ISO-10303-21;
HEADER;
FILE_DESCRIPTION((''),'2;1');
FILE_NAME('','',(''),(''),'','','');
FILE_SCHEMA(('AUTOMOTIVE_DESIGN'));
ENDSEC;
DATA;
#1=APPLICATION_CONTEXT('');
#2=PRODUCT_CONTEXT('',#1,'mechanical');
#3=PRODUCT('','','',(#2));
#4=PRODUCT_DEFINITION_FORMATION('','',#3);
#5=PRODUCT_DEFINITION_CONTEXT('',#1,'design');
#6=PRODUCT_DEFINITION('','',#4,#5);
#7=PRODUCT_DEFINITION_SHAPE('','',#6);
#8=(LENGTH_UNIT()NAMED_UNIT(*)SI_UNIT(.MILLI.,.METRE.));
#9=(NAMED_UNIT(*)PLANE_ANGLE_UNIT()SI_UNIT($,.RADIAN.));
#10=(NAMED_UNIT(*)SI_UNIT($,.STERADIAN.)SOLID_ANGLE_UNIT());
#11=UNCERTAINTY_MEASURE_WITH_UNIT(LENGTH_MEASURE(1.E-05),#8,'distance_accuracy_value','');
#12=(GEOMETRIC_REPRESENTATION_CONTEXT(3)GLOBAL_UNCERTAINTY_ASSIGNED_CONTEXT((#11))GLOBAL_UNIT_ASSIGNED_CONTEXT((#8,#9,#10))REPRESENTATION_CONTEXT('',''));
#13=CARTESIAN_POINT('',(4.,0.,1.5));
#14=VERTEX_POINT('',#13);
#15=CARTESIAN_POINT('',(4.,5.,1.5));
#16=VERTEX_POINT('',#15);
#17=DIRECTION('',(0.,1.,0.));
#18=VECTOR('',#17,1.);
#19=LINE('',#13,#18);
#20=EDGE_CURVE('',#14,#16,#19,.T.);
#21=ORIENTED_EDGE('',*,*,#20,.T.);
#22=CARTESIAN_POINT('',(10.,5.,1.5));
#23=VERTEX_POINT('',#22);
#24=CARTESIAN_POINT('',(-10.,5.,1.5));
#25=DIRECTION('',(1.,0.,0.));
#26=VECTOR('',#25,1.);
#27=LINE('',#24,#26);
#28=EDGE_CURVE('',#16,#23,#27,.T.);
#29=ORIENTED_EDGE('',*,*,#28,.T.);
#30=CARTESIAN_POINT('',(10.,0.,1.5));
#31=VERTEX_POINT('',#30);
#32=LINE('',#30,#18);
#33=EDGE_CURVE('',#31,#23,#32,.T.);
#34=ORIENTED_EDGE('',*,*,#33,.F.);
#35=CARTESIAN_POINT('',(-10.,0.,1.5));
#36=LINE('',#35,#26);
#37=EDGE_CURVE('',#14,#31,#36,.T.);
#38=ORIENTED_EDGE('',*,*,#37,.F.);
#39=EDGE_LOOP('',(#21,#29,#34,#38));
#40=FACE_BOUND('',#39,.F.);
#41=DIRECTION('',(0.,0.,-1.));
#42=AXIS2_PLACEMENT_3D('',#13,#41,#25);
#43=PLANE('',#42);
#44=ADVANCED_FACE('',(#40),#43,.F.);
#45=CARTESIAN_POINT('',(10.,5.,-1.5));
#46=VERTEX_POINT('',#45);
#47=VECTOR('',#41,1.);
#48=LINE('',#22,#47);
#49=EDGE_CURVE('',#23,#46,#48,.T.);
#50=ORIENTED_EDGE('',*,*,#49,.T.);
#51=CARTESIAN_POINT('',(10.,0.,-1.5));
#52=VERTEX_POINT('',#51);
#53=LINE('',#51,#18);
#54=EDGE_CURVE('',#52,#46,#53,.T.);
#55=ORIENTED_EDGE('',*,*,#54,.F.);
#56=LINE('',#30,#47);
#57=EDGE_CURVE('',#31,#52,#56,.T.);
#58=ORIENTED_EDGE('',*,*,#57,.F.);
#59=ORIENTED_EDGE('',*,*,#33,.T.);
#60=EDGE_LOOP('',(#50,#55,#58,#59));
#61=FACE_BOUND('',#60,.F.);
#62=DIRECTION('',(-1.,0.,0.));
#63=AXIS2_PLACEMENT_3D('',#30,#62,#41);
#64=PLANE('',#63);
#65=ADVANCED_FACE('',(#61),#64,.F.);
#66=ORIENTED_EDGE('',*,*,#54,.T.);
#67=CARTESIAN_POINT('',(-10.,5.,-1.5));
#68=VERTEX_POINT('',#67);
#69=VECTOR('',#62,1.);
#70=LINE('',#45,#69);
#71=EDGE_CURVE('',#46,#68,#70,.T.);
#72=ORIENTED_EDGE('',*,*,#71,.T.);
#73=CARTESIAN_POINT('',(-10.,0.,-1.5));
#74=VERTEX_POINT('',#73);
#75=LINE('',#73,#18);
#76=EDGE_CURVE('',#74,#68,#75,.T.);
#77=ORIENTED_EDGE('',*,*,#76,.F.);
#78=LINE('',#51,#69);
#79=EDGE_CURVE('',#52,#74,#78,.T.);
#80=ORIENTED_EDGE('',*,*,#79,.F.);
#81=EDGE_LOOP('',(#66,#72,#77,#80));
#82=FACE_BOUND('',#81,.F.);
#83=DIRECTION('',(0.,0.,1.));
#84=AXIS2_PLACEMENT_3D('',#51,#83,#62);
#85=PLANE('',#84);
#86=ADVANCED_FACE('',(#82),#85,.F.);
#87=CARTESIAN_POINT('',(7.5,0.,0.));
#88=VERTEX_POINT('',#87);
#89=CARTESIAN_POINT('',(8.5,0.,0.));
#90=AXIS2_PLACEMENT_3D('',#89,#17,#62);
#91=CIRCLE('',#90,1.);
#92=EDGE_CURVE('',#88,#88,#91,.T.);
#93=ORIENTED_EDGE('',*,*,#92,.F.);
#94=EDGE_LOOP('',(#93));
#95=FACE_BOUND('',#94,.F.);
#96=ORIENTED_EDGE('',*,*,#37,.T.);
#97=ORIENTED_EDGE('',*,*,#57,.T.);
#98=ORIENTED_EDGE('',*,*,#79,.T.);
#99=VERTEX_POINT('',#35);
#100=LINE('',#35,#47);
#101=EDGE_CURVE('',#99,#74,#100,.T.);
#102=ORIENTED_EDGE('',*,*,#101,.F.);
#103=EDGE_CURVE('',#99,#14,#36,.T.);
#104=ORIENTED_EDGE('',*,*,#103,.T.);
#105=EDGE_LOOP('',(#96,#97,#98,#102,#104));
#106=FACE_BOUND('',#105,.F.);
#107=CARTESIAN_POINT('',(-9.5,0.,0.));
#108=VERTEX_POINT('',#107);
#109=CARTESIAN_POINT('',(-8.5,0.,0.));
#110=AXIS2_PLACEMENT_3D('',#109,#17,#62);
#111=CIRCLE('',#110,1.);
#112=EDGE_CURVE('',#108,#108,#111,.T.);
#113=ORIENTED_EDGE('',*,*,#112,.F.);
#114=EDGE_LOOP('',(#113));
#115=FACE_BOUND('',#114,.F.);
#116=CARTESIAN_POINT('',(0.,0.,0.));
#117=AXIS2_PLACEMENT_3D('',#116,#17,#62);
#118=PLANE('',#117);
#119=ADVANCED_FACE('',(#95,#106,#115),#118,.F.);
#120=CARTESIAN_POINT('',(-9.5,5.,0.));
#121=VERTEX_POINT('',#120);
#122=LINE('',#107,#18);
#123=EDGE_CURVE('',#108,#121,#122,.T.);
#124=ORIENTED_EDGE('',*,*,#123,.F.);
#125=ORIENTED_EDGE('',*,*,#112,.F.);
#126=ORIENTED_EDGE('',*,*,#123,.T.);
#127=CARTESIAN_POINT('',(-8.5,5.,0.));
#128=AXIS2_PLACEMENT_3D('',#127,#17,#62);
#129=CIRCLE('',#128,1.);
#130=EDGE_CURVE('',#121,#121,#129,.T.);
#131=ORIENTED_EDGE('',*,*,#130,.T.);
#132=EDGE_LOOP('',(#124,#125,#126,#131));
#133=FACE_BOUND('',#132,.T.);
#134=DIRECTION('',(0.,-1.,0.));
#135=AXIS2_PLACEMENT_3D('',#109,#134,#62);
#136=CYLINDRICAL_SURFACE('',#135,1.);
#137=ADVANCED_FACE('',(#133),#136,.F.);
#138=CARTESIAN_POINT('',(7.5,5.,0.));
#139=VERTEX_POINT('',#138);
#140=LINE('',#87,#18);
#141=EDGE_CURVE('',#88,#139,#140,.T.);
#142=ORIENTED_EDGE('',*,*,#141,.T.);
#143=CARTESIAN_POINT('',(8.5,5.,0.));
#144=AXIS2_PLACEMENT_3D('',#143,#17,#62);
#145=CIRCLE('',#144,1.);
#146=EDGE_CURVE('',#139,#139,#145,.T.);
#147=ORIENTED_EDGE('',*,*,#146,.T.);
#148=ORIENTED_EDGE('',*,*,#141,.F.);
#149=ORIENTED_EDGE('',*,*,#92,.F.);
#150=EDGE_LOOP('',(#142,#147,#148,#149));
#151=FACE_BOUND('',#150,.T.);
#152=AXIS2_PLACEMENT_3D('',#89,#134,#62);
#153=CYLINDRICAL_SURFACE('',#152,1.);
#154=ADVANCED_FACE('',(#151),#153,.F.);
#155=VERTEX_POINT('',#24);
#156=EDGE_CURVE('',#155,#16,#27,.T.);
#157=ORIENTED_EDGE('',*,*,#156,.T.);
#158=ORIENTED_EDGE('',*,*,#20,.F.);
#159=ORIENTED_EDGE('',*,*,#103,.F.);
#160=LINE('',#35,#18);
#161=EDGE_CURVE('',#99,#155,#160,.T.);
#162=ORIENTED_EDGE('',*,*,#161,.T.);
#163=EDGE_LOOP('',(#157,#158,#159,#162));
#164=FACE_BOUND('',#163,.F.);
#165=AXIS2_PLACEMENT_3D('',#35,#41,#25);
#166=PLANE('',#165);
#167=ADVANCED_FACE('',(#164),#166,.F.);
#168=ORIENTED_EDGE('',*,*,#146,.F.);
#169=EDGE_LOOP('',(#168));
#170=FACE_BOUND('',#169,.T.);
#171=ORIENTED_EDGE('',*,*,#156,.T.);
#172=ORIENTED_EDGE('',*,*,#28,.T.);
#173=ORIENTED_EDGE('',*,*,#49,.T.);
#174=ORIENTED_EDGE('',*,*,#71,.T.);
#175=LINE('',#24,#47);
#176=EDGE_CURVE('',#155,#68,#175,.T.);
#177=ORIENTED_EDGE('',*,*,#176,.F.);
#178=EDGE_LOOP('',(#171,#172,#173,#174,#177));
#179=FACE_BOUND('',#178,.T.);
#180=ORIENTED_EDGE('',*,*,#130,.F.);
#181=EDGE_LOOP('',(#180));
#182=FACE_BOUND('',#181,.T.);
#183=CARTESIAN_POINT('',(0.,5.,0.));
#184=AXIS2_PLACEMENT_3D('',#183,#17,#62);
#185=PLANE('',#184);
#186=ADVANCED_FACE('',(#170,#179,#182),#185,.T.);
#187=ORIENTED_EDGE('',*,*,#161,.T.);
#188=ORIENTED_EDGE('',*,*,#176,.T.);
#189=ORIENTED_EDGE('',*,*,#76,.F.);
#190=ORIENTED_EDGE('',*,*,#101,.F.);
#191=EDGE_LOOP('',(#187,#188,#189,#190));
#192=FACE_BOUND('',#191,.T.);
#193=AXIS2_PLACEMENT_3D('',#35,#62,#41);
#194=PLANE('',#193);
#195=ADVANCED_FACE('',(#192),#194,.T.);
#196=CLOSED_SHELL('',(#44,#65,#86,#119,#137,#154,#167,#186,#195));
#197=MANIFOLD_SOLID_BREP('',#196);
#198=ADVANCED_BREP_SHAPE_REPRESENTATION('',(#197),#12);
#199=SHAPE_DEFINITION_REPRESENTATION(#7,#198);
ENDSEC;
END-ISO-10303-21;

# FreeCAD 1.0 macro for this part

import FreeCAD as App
import Part
import Sketcher

V = App.Vector


def add_polygon(sketch, points):
    """Adds a closed chain of lines whose ends are joined by coincident constraints."""
    first, n = sketch.GeometryCount, len(points)
    for a, b in zip(points, points[1:] + points[:1]):
        sketch.addGeometry(Part.LineSegment(App.Vector(*a, 0), App.Vector(*b, 0)), False)
    for i in range(n):
        sketch.addConstraint(Sketcher.Constraint("Coincident", first + i, 2, first + (i + 1) % n, 1))

doc = App.newDocument("Part")
body = doc.addObject("PartDesign::Body", "Body")

# Sketch on XZ plane
sketch1 = body.newObject("Sketcher::SketchObject", "Sketch")
sketch1.AttachmentSupport = (doc.getObject("XZ_Plane"), [""])
sketch1.MapMode = "FlatFace"
add_polygon(sketch1, [(10, 1.5), (10, -1.5), (-10, -1.5), (-10, 1.5)])  # lines 0-3
sketch1.addGeometry(Part.Circle(V(8.5, 0, 0), V(0, 0, 1), 1), False)  # 4
sketch1.addGeometry(Part.Circle(V(-8.5, 0, 0), V(0, 0, 1), 1), False)  # 5
sketch1.addConstraint([
    Sketcher.Constraint("Vertical", 0),
    Sketcher.Constraint("Horizontal", 1),
    Sketcher.Constraint("Vertical", 2),
    Sketcher.Constraint("Horizontal", 3),
    Sketcher.Constraint("Equal", 4, 5),
    Sketcher.Constraint("Symmetric", 4, 3, 5, 3, -1, 1),
    Sketcher.Constraint("Symmetric", 0, 2, 2, 2, -1, 1),
    Sketcher.Constraint("PointOnObject", 4, 3, -1),
    Sketcher.Constraint("Diameter", 4, 2.0),
    Sketcher.Constraint("DistanceX", 1, 2, 1, 1, 20.0),
    Sketcher.Constraint("DistanceY", 0, 2, 0, 1, 3.0),
    Sketcher.Constraint("DistanceX", 4, 3, 0, 2, 1.5),
])
pad1 = body.newObject("PartDesign::Pad", "Pad")
pad1.Profile = sketch1
pad1.Length = 5
pad1.Reversed = True

doc.recompute()
